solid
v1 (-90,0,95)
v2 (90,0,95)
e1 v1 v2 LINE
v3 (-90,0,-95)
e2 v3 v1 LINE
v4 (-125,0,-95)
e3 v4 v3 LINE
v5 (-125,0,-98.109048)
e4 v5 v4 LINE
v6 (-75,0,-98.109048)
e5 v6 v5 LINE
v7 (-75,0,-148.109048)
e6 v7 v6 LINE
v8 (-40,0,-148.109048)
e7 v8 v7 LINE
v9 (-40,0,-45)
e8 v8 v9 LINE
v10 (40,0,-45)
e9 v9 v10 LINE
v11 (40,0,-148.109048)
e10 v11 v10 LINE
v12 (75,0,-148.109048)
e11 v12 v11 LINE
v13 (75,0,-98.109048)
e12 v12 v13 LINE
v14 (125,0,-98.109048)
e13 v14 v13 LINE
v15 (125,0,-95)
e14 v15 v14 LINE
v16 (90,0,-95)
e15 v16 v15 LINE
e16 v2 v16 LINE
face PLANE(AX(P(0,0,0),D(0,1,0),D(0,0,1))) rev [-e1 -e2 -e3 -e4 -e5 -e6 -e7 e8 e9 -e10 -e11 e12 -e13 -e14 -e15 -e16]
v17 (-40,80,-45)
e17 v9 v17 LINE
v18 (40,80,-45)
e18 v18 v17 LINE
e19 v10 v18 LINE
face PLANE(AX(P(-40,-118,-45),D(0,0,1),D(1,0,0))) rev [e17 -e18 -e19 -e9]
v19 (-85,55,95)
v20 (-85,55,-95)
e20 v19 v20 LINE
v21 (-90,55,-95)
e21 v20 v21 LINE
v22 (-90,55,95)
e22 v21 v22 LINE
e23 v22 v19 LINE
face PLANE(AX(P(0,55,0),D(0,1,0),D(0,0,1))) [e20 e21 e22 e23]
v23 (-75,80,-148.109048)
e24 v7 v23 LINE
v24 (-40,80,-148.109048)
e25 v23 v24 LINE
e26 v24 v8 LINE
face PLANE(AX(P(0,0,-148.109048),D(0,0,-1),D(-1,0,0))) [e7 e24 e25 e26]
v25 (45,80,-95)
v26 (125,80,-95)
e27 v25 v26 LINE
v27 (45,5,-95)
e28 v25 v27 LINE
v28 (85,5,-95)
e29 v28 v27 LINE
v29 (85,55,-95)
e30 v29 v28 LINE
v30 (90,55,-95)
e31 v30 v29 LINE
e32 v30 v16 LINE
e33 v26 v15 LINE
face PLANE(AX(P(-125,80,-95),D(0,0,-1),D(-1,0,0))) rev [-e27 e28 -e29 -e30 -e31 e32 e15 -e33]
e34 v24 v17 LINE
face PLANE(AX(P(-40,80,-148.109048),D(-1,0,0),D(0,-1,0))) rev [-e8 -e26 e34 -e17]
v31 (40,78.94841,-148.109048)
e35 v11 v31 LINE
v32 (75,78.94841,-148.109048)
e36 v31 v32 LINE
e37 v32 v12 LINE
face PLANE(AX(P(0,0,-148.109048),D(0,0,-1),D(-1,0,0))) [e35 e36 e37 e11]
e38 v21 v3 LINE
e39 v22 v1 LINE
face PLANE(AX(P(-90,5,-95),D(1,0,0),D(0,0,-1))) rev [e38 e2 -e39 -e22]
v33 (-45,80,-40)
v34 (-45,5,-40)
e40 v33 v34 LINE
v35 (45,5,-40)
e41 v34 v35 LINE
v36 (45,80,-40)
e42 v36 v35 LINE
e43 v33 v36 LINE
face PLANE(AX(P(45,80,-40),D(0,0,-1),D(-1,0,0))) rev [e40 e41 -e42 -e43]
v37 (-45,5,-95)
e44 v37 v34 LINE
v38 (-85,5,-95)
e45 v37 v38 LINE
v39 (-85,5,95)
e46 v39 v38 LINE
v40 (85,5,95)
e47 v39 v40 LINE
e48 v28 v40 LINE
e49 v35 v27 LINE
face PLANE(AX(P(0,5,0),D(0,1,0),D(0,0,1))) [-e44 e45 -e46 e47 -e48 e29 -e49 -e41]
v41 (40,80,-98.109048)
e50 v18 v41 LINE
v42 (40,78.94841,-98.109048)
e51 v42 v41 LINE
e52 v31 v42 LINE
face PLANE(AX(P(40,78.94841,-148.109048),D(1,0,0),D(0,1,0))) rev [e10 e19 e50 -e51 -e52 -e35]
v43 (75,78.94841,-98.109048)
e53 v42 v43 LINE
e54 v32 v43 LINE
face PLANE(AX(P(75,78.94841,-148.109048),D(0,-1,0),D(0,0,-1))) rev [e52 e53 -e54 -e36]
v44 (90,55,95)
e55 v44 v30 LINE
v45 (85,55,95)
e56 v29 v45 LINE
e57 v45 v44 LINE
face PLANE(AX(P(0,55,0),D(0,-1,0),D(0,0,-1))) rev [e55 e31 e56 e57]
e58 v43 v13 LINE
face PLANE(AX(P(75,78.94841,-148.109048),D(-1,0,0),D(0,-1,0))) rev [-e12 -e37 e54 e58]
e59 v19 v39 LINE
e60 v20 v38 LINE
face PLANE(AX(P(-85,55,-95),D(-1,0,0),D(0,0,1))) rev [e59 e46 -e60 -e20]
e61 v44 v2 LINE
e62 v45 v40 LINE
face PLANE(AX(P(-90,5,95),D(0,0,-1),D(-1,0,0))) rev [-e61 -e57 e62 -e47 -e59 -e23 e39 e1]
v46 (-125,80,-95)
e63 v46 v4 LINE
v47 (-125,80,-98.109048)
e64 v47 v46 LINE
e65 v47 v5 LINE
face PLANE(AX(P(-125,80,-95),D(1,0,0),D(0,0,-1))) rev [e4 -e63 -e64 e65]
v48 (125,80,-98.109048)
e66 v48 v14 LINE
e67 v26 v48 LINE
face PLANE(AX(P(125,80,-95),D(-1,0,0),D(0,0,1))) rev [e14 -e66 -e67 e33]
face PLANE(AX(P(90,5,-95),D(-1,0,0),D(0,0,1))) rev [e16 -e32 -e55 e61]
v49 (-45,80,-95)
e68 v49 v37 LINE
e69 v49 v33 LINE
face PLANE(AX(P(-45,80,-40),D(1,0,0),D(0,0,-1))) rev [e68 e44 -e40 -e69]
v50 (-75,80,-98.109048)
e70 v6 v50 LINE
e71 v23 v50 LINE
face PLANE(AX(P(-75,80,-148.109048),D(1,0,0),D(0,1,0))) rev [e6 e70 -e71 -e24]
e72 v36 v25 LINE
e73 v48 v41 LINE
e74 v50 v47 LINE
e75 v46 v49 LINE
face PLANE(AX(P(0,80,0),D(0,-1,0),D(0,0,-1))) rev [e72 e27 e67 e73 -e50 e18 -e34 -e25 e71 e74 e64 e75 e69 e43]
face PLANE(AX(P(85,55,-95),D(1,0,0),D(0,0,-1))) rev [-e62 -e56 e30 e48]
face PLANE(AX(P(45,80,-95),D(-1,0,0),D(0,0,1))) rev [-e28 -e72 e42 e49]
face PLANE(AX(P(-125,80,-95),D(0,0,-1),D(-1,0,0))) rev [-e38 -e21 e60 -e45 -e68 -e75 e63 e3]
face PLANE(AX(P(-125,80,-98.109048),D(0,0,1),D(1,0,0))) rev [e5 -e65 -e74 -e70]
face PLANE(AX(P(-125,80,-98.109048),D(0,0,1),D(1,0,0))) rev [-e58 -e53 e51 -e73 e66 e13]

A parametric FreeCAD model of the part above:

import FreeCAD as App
import Part
import Sketcher


def add_polygon(sketch, points):
    """Adds a closed chain of lines whose ends are joined by coincident constraints."""
    first, n = sketch.GeometryCount, len(points)
    for a, b in zip(points, points[1:] + points[:1]):
        sketch.addGeometry(Part.LineSegment(App.Vector(*a, 0), App.Vector(*b, 0)), False)
    for i in range(n):
        sketch.addConstraint(Sketcher.Constraint("Coincident", first + i, 2, first + (i + 1) % n, 1))

doc = App.newDocument("Part")
body = doc.addObject("PartDesign::Body", "Body")

# Sketch on XZ plane
sketch1 = doc.addObject("Sketcher::SketchObject", "Sketch")
body.addObject(sketch1)
sketch1.AttachmentSupport = (doc.XZ_Plane, [""])
sketch1.MapMode = "FlatFace"
add_polygon(sketch1, [(-90, -95), (-90, 95), (90, 95), (90, -95)])  # lines 0-3
sketch1.addConstraint(Sketcher.Constraint("Vertical", 0))
sketch1.addConstraint(Sketcher.Constraint("Horizontal", 1))
sketch1.addConstraint(Sketcher.Constraint("Vertical", 2))
sketch1.addConstraint(Sketcher.Constraint("Horizontal", 3))
sketch1.addConstraint(Sketcher.Constraint("Symmetric", 0, 2, 2, 2, -1, 1))
sketch1.addConstraint(Sketcher.Constraint("DistanceX", 1, 1, 1, 2, 180.0))
sketch1.addConstraint(Sketcher.Constraint("DistanceY", 0, 1, 0, 2, 190.0))
pad1 = doc.addObject("PartDesign::Pad", "Pad")
body.addObject(pad1)
pad1.Profile = sketch1
pad1.Length = 5
pad1.Reversed = True

# Sketch on XZ plane
sketch2 = doc.addObject("Sketcher::SketchObject", "Sketch001")
body.addObject(sketch2)
sketch2.AttachmentSupport = (doc.XZ_Plane, [""])
sketch2.MapMode = "FlatFace"
sketch2.AttachmentOffset = App.Placement(App.Vector(0, 0, -5), App.Rotation())
add_polygon(sketch2, [(-90, -95), (-90, 95), (-85, 95), (-85, -95)])  # lines 0-3
add_polygon(sketch2, [(85, -95), (85, 95), (90, 95), (90, -95)])  # lines 4-7
sketch2.addConstraint(Sketcher.Constraint("Vertical", 0))
sketch2.addConstraint(Sketcher.Constraint("Horizontal", 1))
sketch2.addConstraint(Sketcher.Constraint("Vertical", 2))
sketch2.addConstraint(Sketcher.Constraint("Horizontal", 3))
sketch2.addConstraint(Sketcher.Constraint("Vertical", 4))
sketch2.addConstraint(Sketcher.Constraint("Horizontal", 5))
sketch2.addConstraint(Sketcher.Constraint("Vertical", 6))
sketch2.addConstraint(Sketcher.Constraint("Horizontal", 7))
sketch2.addConstraint(Sketcher.Constraint("Symmetric", 2, 2, 4, 2, -1, 1))
sketch2.addConstraint(Sketcher.Constraint("Symmetric", 0, 2, 6, 2, -1, 1))
sketch2.addConstraint(Sketcher.Constraint("Horizontal", 1, 2, 4, 2))
sketch2.addConstraint(Sketcher.Constraint("DistanceX", 1, 1, 1, 2, 5.0))
sketch2.addConstraint(Sketcher.Constraint("DistanceY", 0, 1, 0, 2, 190.0))
sketch2.addConstraint(Sketcher.Constraint("DistanceX", 0, 2, -1, 1, 90.0))
pad2 = doc.addObject("PartDesign::Pad", "Pad001")
body.addObject(pad2)
pad2.Profile = sketch2
pad2.Length = 50
pad2.Reversed = True

# Sketch on XZ plane
sketch3 = doc.addObject("Sketcher::SketchObject", "Sketch002")
body.addObject(sketch3)
sketch3.AttachmentSupport = (doc.XZ_Plane, [""])
sketch3.MapMode = "FlatFace"
add_polygon(sketch3, [(-125, -98.1), (-125, -95), (125, -95), (125, -98.1)])  # lines 0-3
sketch3.addConstraint(Sketcher.Constraint("Vertical", 0))
sketch3.addConstraint(Sketcher.Constraint("Horizontal", 1))
sketch3.addConstraint(Sketcher.Constraint("Vertical", 2))
sketch3.addConstraint(Sketcher.Constraint("Horizontal", 3))
sketch3.addConstraint(Sketcher.Constraint("DistanceX", 1, 1, 1, 2, 250.0))
sketch3.addConstraint(Sketcher.Constraint("DistanceX", 0, 2, -1, 1, 125.0))
sketch3.addConstraint(Sketcher.Constraint("DistanceY", 0, 2, -1, 1, 95.0))
sketch3.addConstraint(Sketcher.Constraint("DistanceY", 0, 1, 0, 2, 3.109048))
pad3 = doc.addObject("PartDesign::Pad", "Pad002")
body.addObject(pad3)
pad3.Profile = sketch3
pad3.Length = 80
pad3.Reversed = True

# Sketch on XY plane
sketch4 = doc.addObject("Sketcher::SketchObject", "Sketch003")
body.addObject(sketch4)
sketch4.AttachmentSupport = (doc.XY_Plane, [""])
sketch4.MapMode = "FlatFace"
sketch4.AttachmentOffset = App.Placement(App.Vector(0, 0, -98.109048), App.Rotation())
add_polygon(sketch4, [(75, 79), (75, 0), (40, 0), (40, 79)])  # lines 0-3
add_polygon(sketch4, [(-40, 80), (-40, 0), (-75, 0), (-75, 80)])  # lines 4-7
sketch4.addConstraint(Sketcher.Constraint("Vertical", 0))
sketch4.addConstraint(Sketcher.Constraint("Horizontal", 1))
sketch4.addConstraint(Sketcher.Constraint("Vertical", 2))
sketch4.addConstraint(Sketcher.Constraint("Horizontal", 3))
sketch4.addConstraint(Sketcher.Constraint("Vertical", 4))
sketch4.addConstraint(Sketcher.Constraint("Horizontal", 5))
sketch4.addConstraint(Sketcher.Constraint("Vertical", 6))
sketch4.addConstraint(Sketcher.Constraint("Horizontal", 7))
sketch4.addConstraint(Sketcher.Constraint("Symmetric", 1, 2, 4, 2, -1, 1))
sketch4.addConstraint(Sketcher.Constraint("Symmetric", 0, 2, 5, 2, -2))
sketch4.addConstraint(Sketcher.Constraint("DistanceX", 1, 2, 1, 1, 35.0))
sketch4.addConstraint(Sketcher.Constraint("DistanceY", 4, 2, 4, 1, 80.0))
sketch4.addConstraint(Sketcher.Constraint("DistanceX", -1, 1, 0, 2, 75.0))
sketch4.addConstraint(Sketcher.Constraint("DistanceY", 0, 2, 0, 1, 78.94841))
pad4 = doc.addObject("PartDesign::Pad", "Pad003")
body.addObject(pad4)
pad4.Profile = sketch4
pad4.Length = 50
pad4.Reversed = True

# Sketch on XZ plane
sketch5 = doc.addObject("Sketcher::SketchObject", "Sketch004")
body.addObject(sketch5)
sketch5.AttachmentSupport = (doc.XZ_Plane, [""])
sketch5.MapMode = "FlatFace"
sketch5.AttachmentOffset = App.Placement(App.Vector(0, 0, -80), App.Rotation())
add_polygon(sketch5, [(-40, -98.1), (-40, -95), (40, -95), (40, -98.1)])  # lines 0-3
sketch5.addConstraint(Sketcher.Constraint("Vertical", 0))
sketch5.addConstraint(Sketcher.Constraint("Horizontal", 1))
sketch5.addConstraint(Sketcher.Constraint("Vertical", 2))
sketch5.addConstraint(Sketcher.Constraint("Horizontal", 3))
sketch5.addConstraint(Sketcher.Constraint("DistanceX", 1, 1, 1, 2, 80.0))
sketch5.addConstraint(Sketcher.Constraint("DistanceX", 0, 2, -1, 1, 40.0))
sketch5.addConstraint(Sketcher.Constraint("DistanceY", 0, 2, -1, 1, 95.0))
sketch5.addConstraint(Sketcher.Constraint("DistanceY", 0, 1, 0, 2, 3.109048))
pocket1 = doc.addObject("PartDesign::Pocket", "Pocket")
body.addObject(pocket1)
pocket1.Profile = sketch5
pocket1.Length = 123
pocket1.Reversed = True

# Sketch on XZ plane
sketch6 = doc.addObject("Sketcher::SketchObject", "Sketch005")
body.addObject(sketch6)
sketch6.AttachmentSupport = (doc.XZ_Plane, [""])
sketch6.MapMode = "FlatFace"
sketch6.AttachmentOffset = App.Placement(App.Vector(0, 0, -5), App.Rotation())
add_polygon(sketch6, [(-40, -95), (-40, -45), (40, -45), (40, -95)])  # lines 0-3
sketch6.addConstraint(Sketcher.Constraint("Vertical", 0))
sketch6.addConstraint(Sketcher.Constraint("Horizontal", 1))
sketch6.addConstraint(Sketcher.Constraint("Vertical", 2))
sketch6.addConstraint(Sketcher.Constraint("Horizontal", 3))
sketch6.addConstraint(Sketcher.Constraint("DistanceX", 1, 1, 1, 2, 80.0))
sketch6.addConstraint(Sketcher.Constraint("DistanceY", 0, 1, 0, 2, 50.0))
sketch6.addConstraint(Sketcher.Constraint("DistanceX", 0, 2, -1, 1, 40.0))
sketch6.addConstraint(Sketcher.Constraint("DistanceY", 0, 2, -1, 1, 45.0))
pocket2 = doc.addObject("PartDesign::Pocket", "Pocket001")
body.addObject(pocket2)
pocket2.Profile = sketch6
pocket2.Length = 123
pocket2.Reversed = True

# Sketch on XZ plane
sketch7 = doc.addObject("Sketcher::SketchObject", "Sketch006")
body.addObject(sketch7)
sketch7.AttachmentSupport = (doc.XZ_Plane, [""])
sketch7.MapMode = "FlatFace"
sketch7.AttachmentOffset = App.Placement(App.Vector(0, 0, -5), App.Rotation())
add_polygon(sketch7, [(-40, -45), (-40, -95), (-45, -95), (-45, -40), (45, -40), (45, -95), (40, -95), (40, -45)])  # lines 0-7
sketch7.addConstraint(Sketcher.Constraint("Vertical", 0))
sketch7.addConstraint(Sketcher.Constraint("Horizontal", 1))
sketch7.addConstraint(Sketcher.Constraint("Vertical", 2))
sketch7.addConstraint(Sketcher.Constraint("Horizontal", 3))
sketch7.addConstraint(Sketcher.Constraint("Vertical", 4))
sketch7.addConstraint(Sketcher.Constraint("Horizontal", 5))
sketch7.addConstraint(Sketcher.Constraint("Vertical", 6))
sketch7.addConstraint(Sketcher.Constraint("Horizontal", 7))
sketch7.addConstraint(Sketcher.Constraint("Symmetric", 1, 2, 4, 2, -2))
sketch7.addConstraint(Sketcher.Constraint("Equal", 1, 5))
sketch7.addConstraint(Sketcher.Constraint("DistanceX", 1, 2, 1, 1, 5.0))
sketch7.addConstraint(Sketcher.Constraint("DistanceX", 3, 1, 3, 2, 90.0))
sketch7.addConstraint(Sketcher.Constraint("DistanceY", 0, 2, 0, 1, 50.0))
sketch7.addConstraint(Sketcher.Constraint("DistanceY", 2, 1, 2, 2, 55.0))
sketch7.addConstraint(Sketcher.Constraint("DistanceY", 0, 2, -1, 1, 95.0))
pad5 = doc.addObject("PartDesign::Pad", "Pad004")
body.addObject(pad5)
pad5.Profile = sketch7
pad5.Length = 75
pad5.Reversed = True

doc.recompute()
